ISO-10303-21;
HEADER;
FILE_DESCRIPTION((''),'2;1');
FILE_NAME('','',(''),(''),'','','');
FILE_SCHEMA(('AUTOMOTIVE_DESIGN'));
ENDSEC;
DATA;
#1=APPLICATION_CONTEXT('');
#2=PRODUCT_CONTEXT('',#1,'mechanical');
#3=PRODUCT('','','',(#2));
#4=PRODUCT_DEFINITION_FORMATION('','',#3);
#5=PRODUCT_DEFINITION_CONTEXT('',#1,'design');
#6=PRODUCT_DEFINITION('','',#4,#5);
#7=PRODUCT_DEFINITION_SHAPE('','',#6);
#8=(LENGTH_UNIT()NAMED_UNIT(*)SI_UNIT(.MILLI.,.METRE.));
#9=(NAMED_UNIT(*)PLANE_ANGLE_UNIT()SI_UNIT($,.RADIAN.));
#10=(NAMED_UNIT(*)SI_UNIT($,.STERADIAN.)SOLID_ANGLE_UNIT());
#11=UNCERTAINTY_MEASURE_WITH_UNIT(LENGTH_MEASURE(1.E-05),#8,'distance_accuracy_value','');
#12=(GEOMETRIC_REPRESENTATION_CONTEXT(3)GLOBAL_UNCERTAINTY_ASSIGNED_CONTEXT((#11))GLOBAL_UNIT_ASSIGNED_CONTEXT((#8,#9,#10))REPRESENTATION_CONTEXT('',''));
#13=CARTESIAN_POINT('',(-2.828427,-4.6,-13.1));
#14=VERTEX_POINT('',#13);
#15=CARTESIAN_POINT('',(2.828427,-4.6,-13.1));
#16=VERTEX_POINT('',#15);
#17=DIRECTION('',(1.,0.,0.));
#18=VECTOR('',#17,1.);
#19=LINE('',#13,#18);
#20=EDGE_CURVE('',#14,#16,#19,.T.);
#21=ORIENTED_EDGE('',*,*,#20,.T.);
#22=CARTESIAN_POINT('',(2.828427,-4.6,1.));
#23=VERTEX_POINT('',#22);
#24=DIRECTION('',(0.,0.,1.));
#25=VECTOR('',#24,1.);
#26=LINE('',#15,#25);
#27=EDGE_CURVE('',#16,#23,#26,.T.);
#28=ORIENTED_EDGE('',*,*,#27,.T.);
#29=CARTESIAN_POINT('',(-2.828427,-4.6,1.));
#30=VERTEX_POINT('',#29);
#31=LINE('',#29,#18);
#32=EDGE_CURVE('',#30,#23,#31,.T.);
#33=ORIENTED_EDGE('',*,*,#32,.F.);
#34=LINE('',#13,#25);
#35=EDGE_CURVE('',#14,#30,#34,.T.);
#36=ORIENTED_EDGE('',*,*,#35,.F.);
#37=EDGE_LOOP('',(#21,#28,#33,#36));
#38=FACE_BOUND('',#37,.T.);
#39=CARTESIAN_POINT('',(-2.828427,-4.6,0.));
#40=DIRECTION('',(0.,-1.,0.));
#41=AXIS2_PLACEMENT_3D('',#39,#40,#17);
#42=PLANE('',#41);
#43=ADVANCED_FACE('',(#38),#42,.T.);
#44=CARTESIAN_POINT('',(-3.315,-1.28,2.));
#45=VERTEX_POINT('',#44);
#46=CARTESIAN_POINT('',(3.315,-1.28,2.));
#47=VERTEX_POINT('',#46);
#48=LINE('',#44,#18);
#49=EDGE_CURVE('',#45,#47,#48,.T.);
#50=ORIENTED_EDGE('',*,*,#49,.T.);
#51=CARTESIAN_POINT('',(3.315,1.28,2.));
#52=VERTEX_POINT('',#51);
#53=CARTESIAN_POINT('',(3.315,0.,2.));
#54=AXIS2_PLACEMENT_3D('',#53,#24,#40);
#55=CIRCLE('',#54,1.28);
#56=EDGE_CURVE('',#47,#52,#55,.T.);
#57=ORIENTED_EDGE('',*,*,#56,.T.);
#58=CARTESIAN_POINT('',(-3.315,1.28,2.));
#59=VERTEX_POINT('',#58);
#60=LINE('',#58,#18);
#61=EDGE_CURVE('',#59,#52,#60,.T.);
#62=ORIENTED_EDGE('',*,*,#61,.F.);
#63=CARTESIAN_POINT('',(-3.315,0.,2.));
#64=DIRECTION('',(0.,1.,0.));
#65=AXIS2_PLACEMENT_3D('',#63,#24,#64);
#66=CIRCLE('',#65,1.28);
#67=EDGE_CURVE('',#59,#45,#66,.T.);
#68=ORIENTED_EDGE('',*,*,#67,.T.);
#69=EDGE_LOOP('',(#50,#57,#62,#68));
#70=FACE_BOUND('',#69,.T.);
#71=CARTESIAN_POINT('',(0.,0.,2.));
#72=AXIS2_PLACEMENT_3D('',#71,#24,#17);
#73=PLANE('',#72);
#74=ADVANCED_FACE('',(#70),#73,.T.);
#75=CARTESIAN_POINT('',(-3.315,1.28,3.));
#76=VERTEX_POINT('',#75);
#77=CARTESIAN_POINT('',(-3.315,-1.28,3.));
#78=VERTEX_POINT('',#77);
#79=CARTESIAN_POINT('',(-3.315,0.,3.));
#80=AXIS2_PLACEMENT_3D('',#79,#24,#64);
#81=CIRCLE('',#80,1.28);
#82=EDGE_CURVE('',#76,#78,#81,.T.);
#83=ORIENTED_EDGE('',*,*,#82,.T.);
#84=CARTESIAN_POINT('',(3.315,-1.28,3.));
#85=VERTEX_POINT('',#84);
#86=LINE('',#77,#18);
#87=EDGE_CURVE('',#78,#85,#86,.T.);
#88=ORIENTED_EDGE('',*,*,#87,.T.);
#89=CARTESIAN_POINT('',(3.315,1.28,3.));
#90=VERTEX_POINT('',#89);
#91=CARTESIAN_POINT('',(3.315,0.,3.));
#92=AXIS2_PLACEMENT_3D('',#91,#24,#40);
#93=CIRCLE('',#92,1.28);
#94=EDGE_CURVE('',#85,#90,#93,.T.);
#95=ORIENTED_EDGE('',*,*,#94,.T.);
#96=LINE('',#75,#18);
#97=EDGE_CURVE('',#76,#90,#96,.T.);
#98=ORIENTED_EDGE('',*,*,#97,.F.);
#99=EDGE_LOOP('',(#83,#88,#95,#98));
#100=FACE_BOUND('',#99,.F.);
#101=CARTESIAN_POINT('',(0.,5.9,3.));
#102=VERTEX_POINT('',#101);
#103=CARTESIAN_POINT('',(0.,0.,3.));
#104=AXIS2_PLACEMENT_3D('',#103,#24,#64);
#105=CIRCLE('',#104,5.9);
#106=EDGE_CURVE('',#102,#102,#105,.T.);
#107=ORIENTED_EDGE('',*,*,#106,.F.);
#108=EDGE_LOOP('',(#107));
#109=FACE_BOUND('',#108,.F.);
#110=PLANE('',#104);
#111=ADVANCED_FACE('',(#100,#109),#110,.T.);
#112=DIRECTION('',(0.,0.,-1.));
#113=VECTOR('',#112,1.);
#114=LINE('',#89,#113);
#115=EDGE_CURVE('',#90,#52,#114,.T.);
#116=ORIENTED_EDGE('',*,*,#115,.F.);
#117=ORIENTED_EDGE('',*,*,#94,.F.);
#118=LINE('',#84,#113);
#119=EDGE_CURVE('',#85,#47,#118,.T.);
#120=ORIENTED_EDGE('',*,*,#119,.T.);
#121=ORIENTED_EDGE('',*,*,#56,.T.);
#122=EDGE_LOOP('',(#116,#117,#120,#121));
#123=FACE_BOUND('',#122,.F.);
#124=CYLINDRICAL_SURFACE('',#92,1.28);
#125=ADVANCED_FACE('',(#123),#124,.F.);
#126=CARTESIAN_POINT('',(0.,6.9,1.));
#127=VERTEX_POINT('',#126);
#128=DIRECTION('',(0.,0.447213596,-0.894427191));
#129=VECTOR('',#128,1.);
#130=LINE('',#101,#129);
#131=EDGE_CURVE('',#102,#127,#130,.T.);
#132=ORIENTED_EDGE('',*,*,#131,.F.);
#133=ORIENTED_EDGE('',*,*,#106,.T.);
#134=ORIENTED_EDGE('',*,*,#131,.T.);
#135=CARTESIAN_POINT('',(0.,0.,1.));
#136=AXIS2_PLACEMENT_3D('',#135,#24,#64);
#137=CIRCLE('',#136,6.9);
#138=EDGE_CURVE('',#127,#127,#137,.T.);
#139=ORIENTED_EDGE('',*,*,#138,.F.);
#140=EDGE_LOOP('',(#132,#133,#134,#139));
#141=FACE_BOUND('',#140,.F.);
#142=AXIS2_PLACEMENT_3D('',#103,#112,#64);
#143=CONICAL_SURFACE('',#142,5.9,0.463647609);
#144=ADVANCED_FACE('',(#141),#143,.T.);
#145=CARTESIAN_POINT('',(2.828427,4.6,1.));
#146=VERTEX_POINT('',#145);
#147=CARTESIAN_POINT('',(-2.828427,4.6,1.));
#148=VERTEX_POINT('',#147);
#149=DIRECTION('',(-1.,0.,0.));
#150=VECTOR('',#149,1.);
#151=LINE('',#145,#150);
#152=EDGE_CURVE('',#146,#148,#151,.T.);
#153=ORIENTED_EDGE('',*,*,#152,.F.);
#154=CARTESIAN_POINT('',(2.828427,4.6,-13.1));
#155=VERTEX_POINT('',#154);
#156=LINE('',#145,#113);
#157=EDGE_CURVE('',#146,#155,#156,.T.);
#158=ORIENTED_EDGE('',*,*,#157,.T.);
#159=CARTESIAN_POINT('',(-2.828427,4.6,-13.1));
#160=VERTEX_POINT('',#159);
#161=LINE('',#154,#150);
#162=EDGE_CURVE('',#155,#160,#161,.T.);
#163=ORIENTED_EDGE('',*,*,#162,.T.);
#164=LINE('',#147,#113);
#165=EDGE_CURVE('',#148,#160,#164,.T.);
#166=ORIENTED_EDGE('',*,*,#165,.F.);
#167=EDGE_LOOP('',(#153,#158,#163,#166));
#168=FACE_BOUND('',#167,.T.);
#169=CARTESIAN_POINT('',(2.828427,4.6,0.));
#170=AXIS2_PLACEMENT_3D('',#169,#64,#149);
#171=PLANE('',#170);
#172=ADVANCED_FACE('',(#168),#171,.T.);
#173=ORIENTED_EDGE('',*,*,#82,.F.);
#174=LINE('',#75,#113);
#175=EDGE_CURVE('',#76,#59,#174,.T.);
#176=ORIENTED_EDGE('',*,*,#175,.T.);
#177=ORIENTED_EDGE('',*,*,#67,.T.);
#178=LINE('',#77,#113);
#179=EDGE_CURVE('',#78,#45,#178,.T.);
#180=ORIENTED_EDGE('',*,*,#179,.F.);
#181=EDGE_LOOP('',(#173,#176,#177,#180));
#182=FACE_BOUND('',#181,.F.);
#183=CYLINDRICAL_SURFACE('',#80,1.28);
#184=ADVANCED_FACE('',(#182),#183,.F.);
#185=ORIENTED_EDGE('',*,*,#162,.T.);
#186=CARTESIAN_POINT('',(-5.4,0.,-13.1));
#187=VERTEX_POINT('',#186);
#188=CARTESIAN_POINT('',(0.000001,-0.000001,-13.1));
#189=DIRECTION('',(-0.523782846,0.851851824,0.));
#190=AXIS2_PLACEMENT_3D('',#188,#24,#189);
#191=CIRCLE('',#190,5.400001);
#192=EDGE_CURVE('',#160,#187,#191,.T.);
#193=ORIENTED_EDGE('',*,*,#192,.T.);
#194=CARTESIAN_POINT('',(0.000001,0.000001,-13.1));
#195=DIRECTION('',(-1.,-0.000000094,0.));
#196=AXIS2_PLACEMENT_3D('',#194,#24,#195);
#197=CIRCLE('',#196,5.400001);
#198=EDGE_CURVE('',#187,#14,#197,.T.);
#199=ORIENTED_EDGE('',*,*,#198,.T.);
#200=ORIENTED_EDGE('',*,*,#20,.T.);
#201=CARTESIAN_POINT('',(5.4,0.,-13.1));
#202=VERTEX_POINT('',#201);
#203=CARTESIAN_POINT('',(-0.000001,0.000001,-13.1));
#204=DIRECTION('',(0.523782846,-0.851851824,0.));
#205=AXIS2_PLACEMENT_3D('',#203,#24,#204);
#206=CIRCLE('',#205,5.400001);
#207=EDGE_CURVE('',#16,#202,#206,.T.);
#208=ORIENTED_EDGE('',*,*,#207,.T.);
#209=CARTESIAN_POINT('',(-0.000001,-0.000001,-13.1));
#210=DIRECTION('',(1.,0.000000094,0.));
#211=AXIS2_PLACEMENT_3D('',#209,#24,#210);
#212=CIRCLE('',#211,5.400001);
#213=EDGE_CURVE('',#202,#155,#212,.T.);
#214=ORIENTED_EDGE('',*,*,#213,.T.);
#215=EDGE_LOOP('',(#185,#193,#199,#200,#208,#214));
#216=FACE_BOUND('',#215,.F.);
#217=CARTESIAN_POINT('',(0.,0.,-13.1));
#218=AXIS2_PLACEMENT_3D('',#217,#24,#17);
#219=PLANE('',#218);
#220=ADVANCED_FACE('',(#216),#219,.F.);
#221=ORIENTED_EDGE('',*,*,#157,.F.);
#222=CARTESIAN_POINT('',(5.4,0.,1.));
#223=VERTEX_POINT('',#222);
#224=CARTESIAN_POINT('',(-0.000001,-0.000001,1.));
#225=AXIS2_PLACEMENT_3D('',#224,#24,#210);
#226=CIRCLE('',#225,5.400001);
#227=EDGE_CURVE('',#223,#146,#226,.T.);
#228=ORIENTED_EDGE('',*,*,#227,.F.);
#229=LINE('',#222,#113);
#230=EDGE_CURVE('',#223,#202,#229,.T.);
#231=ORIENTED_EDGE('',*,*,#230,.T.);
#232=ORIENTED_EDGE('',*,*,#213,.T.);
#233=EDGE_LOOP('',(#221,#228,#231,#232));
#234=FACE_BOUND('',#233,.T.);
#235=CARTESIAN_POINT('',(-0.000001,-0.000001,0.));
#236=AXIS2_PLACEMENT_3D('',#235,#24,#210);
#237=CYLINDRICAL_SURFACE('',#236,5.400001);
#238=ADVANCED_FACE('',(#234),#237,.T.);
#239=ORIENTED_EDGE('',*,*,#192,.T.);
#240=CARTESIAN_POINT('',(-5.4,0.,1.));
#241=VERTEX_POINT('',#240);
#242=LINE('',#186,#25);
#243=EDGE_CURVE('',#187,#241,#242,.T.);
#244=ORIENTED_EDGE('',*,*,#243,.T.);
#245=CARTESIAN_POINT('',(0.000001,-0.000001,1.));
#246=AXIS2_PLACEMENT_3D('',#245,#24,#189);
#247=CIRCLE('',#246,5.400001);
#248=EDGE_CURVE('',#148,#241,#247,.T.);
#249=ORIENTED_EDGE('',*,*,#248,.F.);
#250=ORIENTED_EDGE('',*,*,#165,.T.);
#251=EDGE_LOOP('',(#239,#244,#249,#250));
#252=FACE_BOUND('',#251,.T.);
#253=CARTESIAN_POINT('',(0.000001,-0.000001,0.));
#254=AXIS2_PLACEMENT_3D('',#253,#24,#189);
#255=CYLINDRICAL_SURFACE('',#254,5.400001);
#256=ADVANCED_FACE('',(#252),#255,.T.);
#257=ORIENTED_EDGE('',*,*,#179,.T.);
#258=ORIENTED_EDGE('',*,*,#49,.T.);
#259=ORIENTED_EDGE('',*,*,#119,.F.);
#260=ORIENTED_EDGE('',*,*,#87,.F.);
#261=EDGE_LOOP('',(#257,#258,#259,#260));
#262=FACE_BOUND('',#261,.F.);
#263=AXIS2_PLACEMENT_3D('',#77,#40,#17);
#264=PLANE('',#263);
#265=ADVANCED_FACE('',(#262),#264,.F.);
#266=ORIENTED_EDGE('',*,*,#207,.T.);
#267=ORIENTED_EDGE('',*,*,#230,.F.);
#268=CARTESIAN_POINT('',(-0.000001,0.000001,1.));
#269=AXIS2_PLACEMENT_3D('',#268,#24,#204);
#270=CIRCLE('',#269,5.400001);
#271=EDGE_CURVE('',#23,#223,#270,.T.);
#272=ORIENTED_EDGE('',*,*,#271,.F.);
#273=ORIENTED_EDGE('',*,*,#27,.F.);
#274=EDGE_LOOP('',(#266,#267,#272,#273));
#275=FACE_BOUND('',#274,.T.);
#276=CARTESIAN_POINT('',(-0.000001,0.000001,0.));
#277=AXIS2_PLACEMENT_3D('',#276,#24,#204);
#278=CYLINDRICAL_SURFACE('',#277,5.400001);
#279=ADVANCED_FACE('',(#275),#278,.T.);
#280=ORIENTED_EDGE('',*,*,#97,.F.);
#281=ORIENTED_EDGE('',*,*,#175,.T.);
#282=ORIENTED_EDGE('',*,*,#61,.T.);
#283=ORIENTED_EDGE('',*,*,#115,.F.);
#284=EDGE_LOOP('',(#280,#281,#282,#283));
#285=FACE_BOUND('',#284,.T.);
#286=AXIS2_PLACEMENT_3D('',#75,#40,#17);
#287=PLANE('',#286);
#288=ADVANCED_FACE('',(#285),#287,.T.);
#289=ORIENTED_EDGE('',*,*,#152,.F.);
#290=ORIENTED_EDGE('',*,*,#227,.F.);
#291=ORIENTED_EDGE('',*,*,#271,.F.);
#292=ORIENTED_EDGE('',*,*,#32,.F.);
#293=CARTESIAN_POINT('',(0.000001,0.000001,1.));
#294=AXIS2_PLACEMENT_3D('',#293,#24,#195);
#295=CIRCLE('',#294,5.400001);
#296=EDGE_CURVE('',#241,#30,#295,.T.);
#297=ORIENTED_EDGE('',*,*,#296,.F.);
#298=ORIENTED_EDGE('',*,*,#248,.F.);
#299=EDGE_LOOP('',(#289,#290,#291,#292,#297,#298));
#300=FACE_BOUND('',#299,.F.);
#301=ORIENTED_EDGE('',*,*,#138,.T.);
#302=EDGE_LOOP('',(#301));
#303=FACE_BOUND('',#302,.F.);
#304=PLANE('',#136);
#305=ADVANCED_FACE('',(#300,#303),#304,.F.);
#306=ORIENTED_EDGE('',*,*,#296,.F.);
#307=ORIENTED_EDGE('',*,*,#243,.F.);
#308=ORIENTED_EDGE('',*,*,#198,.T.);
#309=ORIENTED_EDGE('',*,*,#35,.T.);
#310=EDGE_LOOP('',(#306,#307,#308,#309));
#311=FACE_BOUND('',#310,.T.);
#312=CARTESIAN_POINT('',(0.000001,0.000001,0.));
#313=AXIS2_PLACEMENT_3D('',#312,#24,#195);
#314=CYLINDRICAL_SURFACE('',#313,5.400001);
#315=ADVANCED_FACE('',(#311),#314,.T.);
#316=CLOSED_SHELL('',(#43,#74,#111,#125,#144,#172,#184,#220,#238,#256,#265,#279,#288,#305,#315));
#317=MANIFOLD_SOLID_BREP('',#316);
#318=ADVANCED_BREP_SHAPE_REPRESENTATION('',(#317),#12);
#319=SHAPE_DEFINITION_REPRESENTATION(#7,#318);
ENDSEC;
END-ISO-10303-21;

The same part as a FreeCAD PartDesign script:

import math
import FreeCAD as App
import Part
import Sketcher

V = App.Vector


def add_polygon(sketch, points):
    """Adds a closed chain of lines whose ends are joined by coincident constraints."""
    first, n = sketch.GeometryCount, len(points)
    for a, b in zip(points, points[1:] + points[:1]):
        sketch.addGeometry(Part.LineSegment(App.Vector(*a, 0), App.Vector(*b, 0)), False)
    for i in range(n):
        sketch.addConstraint(Sketcher.Constraint("Coincident", first + i, 2, first + (i + 1) % n, 1))

doc = App.newDocument("Part")
body = doc.addObject("PartDesign::Body", "Body")

# Sketch on XY plane
sketch1 = body.newObject("Sketcher::SketchObject", "Sketch")
sketch1.AttachmentSupport = (doc.getObject("XY_Plane"), [""])
sketch1.MapMode = "FlatFace"
sketch1.addGeometry(Part.ArcOfCircle(Part.Circle(V(0.000001, -0.000001, 0), V(0, 0, 1), 5.400001), math.radians(121.586341), math.radians(179.999995)), False)
sketch1.addGeometry(Part.ArcOfCircle(Part.Circle(V(0.000001, 0.000001, 0), V(0, 0, 1), 5.400001), math.radians(-179.999995), math.radians(-121.586341)), False)
sketch1.addGeometry(Part.LineSegment(V(-2.828427, -4.6, 0), V(2.828427, -4.6, 0)), False)
sketch1.addGeometry(Part.ArcOfCircle(Part.Circle(V(-0.000001, 0.000001, 0), V(0, 0, 1), 5.400001), math.radians(-58.413659), math.radians(-0.000005)), False)
sketch1.addGeometry(Part.ArcOfCircle(Part.Circle(V(-0.000001, -0.000001, 0), V(0, 0, 1), 5.400001), math.radians(0.000005), math.radians(58.413659)), False)
sketch1.addGeometry(Part.LineSegment(V(2.828427, 4.6, 0), V(-2.828427, 4.6, 0)), False)
sketch1.addConstraint(Sketcher.Constraint("Tangent", 0, 2, 1, 1))
sketch1.addConstraint(Sketcher.Constraint("Coincident", 1, 2, 2, 1))
sketch1.addConstraint(Sketcher.Constraint("Coincident", 2, 2, 3, 1))
sketch1.addConstraint(Sketcher.Constraint("Tangent", 3, 2, 4, 1))
sketch1.addConstraint(Sketcher.Constraint("Coincident", 4, 2, 5, 1))
sketch1.addConstraint(Sketcher.Constraint("Coincident", 5, 2, 0, 1))
sketch1.addConstraint(Sketcher.Constraint("Horizontal", 2))
sketch1.addConstraint(Sketcher.Constraint("Horizontal", 5))
sketch1.addConstraint(Sketcher.Constraint("Coincident", 0, 3, -1, 1))
sketch1.addConstraint(Sketcher.Constraint("Coincident", 3, 3, -1, 1))
sketch1.addConstraint(Sketcher.Constraint("Equal", 0, 1))
sketch1.addConstraint(Sketcher.Constraint("Equal", 1, 3))
sketch1.addConstraint(Sketcher.Constraint("Equal", 3, 4))
sketch1.addConstraint(Sketcher.Constraint("PointOnObject", 0, 2, -1))
sketch1.addConstraint(Sketcher.Constraint("PointOnObject", 3, 2, -1))
sketch1.addConstraint(Sketcher.Constraint("Vertical", 2, 2, 4, 2))
sketch1.addConstraint(Sketcher.Constraint("Radius", 0, 5.400001))
sketch1.addConstraint(Sketcher.Constraint("DistanceY", 1, 2, -1, 1, 4.6))
pad1 = body.newObject("PartDesign::Pad", "Pad")
pad1.Profile = sketch1
pad1.Length = 1

# Sketch on XY plane
sketch2 = body.newObject("Sketcher::SketchObject", "Sketch001")
sketch2.AttachmentSupport = (doc.getObject("XY_Plane"), [""])
sketch2.MapMode = "FlatFace"
sketch2.addGeometry(Part.ArcOfCircle(Part.Circle(V(0.000001, -0.000001, 0), V(0, 0, 1), 5.400001), math.radians(121.586341), math.radians(179.999995)), False)
sketch2.addGeometry(Part.ArcOfCircle(Part.Circle(V(0.000001, 0.000001, 0), V(0, 0, 1), 5.400001), math.radians(-179.999995), math.radians(-121.586341)), False)
sketch2.addGeometry(Part.LineSegment(V(-2.828427, -4.6, 0), V(2.828427, -4.6, 0)), False)
sketch2.addGeometry(Part.ArcOfCircle(Part.Circle(V(-0.000001, 0.000001, 0), V(0, 0, 1), 5.400001), math.radians(-58.413659), math.radians(-0.000005)), False)
sketch2.addGeometry(Part.ArcOfCircle(Part.Circle(V(-0.000001, -0.000001, 0), V(0, 0, 1), 5.400001), math.radians(0.000005), math.radians(58.413659)), False)
sketch2.addGeometry(Part.LineSegment(V(2.828427, 4.6, 0), V(-2.828427, 4.6, 0)), False)
sketch2.addConstraint(Sketcher.Constraint("Tangent", 0, 2, 1, 1))
sketch2.addConstraint(Sketcher.Constraint("Coincident", 1, 2, 2, 1))
sketch2.addConstraint(Sketcher.Constraint("Coincident", 2, 2, 3, 1))
sketch2.addConstraint(Sketcher.Constraint("Tangent", 3, 2, 4, 1))
sketch2.addConstraint(Sketcher.Constraint("Coincident", 4, 2, 5, 1))
sketch2.addConstraint(Sketcher.Constraint("Coincident", 5, 2, 0, 1))
sketch2.addConstraint(Sketcher.Constraint("Horizontal", 2))
sketch2.addConstraint(Sketcher.Constraint("Horizontal", 5))
sketch2.addConstraint(Sketcher.Constraint("Coincident", 0, 3, -1, 1))
sketch2.addConstraint(Sketcher.Constraint("Coincident", 3, 3, -1, 1))
sketch2.addConstraint(Sketcher.Constraint("Equal", 0, 1))
sketch2.addConstraint(Sketcher.Constraint("Equal", 1, 3))
sketch2.addConstraint(Sketcher.Constraint("Equal", 3, 4))
sketch2.addConstraint(Sketcher.Constraint("PointOnObject", 0, 2, -1))
sketch2.addConstraint(Sketcher.Constraint("PointOnObject", 3, 2, -1))
sketch2.addConstraint(Sketcher.Constraint("Vertical", 2, 2, 4, 2))
sketch2.addConstraint(Sketcher.Constraint("Radius", 0, 5.400001))
sketch2.addConstraint(Sketcher.Constraint("DistanceY", 1, 2, -1, 1, 4.6))
pad2 = body.newObject("PartDesign::Pad", "Pad001")
pad2.Profile = sketch2
pad2.Length = 13.1
pad2.Reversed = True

# Sketch on YZ plane
sketch3 = body.newObject("Sketcher::SketchObject", "Sketch002")
sketch3.AttachmentSupport = (doc.getObject("YZ_Plane"), [""])
sketch3.MapMode = "FlatFace"
add_polygon(sketch3, [(0, 3), (0, 1), (6.9, 1), (5.9, 3)])  # lines 0-3
sketch3.addConstraint(Sketcher.Constraint("Vertical", 0))
sketch3.addConstraint(Sketcher.Constraint("Horizontal", 1))
sketch3.addConstraint(Sketcher.Constraint("Horizontal", 3))
sketch3.addConstraint(Sketcher.Constraint("PointOnObject", 0, 2, -2))
sketch3.addConstraint(Sketcher.Constraint("DistanceY", 0, 2, 0, 1, 2.0))
sketch3.addConstraint(Sketcher.Constraint("DistanceX", 1, 1, 1, 2, 6.9))
sketch3.addConstraint(Sketcher.Constraint("DistanceX", 3, 2, 3, 1, 5.9))
sketch3.addConstraint(Sketcher.Constraint("DistanceY", -1, 1, 0, 2, 1.0))
revolution = body.newObject("PartDesign::Revolution", "Revolution")
revolution.Profile = sketch3
revolution.ReferenceAxis = (sketch3, ["V_Axis"])
revolution.Angle = 360

# Sketch on XY plane
sketch4 = body.newObject("Sketcher::SketchObject", "Sketch003")
sketch4.AttachmentSupport = (doc.getObject("XY_Plane"), [""])
sketch4.MapMode = "FlatFace"
sketch4.AttachmentOffset = App.Placement(V(0, 0, 3), App.Rotation())
sketch4.addGeometry(Part.ArcOfCircle(Part.Circle(V(-3.315, 0, 0), V(0, 0, 1), 1.28), math.radians(90), math.radians(270)), False)
sketch4.addGeometry(Part.LineSegment(V(-3.315, -1.28, 0), V(3.315, -1.28, 0)), False)
sketch4.addGeometry(Part.ArcOfCircle(Part.Circle(V(3.315, 0, 0), V(0, 0, 1), 1.28), math.radians(-90), math.radians(90)), False)
sketch4.addGeometry(Part.LineSegment(V(3.315, 1.28, 0), V(-3.315, 1.28, 0)), False)
sketch4.addConstraint(Sketcher.Constraint("Tangent", 0, 2, 1, 1))
sketch4.addConstraint(Sketcher.Constraint("Tangent", 1, 2, 2, 1))
sketch4.addConstraint(Sketcher.Constraint("Tangent", 2, 2, 3, 1))
sketch4.addConstraint(Sketcher.Constraint("Tangent", 3, 2, 0, 1))
sketch4.addConstraint(Sketcher.Constraint("Horizontal", 1))
sketch4.addConstraint(Sketcher.Constraint("Horizontal", 3))
sketch4.addConstraint(Sketcher.Constraint("Symmetric", 0, 3, 2, 3, -1, 1))
sketch4.addConstraint(Sketcher.Constraint("Radius", 0, 1.28))
sketch4.addConstraint(Sketcher.Constraint("DistanceX", 1, 1, 1, 2, 6.63))
pocket1 = body.newObject("PartDesign::Pocket", "Pocket")
pocket1.Profile = sketch4
pocket1.Length = 1

doc.recompute()
